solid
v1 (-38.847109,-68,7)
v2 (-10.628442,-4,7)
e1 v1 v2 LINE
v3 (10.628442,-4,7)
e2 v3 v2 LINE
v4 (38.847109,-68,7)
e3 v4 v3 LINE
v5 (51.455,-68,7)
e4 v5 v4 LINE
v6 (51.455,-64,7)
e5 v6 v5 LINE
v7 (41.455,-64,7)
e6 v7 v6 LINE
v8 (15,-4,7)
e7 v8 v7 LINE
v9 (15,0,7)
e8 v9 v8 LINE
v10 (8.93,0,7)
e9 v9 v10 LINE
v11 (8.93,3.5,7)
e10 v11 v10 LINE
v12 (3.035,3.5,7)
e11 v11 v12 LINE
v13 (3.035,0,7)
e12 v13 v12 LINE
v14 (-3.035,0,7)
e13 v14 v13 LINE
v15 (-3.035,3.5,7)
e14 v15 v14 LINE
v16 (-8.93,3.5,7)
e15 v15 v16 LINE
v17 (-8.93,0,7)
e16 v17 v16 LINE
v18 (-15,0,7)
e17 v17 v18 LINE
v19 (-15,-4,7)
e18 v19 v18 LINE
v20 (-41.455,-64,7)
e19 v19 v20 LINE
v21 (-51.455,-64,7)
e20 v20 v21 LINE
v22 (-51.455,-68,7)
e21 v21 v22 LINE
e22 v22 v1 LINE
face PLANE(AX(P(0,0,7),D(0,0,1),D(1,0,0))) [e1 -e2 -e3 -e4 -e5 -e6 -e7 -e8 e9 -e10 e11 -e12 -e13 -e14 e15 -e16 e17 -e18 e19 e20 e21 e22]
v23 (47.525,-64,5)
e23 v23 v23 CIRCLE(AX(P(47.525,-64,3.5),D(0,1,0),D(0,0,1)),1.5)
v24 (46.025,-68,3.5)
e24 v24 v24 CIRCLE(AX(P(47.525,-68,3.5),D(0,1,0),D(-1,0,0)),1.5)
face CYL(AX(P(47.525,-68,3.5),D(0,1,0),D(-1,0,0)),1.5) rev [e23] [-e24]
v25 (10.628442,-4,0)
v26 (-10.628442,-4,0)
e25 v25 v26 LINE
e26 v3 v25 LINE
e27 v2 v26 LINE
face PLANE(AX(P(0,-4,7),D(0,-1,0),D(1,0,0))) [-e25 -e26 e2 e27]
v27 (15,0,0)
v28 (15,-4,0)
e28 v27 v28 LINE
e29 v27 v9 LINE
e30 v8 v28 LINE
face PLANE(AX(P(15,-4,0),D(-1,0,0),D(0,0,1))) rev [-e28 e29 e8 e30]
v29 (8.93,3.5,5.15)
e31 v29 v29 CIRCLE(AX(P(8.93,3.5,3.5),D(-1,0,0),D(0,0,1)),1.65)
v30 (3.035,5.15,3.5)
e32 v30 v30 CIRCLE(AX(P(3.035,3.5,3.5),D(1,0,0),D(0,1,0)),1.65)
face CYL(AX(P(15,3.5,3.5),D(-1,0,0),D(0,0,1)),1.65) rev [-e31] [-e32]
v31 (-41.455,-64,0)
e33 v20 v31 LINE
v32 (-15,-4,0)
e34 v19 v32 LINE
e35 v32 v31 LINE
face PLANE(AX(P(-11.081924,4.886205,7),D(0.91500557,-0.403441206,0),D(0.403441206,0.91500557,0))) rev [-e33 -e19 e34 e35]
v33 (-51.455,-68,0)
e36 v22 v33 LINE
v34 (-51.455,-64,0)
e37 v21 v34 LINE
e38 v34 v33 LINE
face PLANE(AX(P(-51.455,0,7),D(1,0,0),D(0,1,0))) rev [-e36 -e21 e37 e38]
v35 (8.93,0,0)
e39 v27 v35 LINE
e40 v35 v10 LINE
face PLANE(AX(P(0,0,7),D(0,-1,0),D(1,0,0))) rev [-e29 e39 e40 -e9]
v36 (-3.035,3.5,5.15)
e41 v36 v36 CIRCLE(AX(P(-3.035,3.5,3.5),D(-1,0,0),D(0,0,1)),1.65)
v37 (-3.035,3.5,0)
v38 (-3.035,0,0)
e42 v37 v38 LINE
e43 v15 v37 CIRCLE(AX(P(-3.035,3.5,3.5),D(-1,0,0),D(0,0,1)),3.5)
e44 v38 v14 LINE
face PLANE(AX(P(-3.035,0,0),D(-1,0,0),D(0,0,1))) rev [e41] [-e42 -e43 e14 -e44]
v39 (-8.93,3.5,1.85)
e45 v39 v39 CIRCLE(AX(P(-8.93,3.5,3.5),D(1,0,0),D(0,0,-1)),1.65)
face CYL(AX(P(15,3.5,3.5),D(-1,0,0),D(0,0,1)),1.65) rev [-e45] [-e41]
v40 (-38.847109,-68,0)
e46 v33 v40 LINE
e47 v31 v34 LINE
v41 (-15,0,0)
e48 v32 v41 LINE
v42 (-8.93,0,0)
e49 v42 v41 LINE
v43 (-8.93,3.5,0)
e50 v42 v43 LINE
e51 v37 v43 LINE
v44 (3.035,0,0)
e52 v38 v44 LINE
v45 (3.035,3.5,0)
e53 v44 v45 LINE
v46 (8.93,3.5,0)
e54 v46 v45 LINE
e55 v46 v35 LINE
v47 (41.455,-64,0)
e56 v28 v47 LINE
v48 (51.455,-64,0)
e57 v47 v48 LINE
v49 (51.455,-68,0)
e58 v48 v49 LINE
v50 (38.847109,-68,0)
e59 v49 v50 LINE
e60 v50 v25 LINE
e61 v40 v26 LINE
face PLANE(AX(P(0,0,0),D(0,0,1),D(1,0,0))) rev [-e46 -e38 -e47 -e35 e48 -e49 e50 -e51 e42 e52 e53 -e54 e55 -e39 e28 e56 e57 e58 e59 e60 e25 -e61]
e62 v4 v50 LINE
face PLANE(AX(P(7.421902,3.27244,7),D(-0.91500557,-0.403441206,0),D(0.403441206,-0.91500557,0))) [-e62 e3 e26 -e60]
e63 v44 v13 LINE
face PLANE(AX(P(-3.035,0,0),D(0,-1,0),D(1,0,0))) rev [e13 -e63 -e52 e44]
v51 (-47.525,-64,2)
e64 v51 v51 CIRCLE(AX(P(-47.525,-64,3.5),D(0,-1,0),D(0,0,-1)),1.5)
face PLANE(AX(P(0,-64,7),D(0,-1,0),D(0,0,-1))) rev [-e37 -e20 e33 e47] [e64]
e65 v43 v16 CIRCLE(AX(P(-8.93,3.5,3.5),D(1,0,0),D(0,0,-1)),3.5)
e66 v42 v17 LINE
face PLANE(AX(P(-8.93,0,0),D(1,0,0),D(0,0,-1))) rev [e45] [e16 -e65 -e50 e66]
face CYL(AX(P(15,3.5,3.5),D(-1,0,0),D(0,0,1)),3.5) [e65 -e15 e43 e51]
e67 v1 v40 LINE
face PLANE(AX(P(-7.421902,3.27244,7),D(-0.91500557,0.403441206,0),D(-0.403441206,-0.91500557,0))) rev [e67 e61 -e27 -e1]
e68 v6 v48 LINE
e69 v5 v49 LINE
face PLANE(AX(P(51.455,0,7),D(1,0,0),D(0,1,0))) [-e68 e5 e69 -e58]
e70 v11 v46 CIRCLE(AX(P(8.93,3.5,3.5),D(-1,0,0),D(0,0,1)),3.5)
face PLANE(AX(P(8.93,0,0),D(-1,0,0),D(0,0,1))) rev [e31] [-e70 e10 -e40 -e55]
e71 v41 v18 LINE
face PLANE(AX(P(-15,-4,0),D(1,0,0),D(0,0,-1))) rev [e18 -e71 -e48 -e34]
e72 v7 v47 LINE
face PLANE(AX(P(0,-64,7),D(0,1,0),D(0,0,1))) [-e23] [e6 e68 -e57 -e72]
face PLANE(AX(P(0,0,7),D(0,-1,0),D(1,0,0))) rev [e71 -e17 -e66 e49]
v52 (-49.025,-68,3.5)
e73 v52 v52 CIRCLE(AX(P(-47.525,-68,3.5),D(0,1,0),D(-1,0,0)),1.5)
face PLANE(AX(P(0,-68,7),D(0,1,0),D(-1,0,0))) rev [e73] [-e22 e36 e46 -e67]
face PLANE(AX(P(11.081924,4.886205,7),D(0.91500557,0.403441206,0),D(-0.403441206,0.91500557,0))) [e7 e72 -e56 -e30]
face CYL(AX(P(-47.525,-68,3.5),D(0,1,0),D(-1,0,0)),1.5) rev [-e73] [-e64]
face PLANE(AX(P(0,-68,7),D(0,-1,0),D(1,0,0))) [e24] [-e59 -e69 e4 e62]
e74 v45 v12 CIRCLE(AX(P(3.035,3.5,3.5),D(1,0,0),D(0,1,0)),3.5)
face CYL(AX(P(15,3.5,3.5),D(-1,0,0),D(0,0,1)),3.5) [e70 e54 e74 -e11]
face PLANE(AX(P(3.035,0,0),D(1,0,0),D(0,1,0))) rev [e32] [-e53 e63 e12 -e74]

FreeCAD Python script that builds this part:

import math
import FreeCAD as App
import Part
import Sketcher
from FreeCAD import Vector
Q = App.Units.Quantity


def add_polygon(sketch, points):
    """Adds a closed chain of lines whose ends are joined by coincident constraints."""
    first, n = sketch.GeometryCount, len(points)
    for a, b in zip(points, points[1:] + points[:1]):
        sketch.addGeometry(Part.LineSegment(App.Vector(*a, 0), App.Vector(*b, 0)), False)
    for i in range(n):
        sketch.addConstraint(Sketcher.Constraint("Coincident", first + i, 2, first + (i + 1) % n, 1))

doc = App.newDocument("Part")
body = doc.addObject("PartDesign::Body", "Body")

sketch1 = doc.addObject("Sketcher::SketchObject", "Sketch")
body.addObject(sketch1)
sketch1.AttachmentSupport = (doc.XY_Plane, [""])
sketch1.MapMode = "FlatFace"
add_polygon(sketch1, [(-38.847109, -68), (-10.628442, -4), (10.628442, -4), (38.847109, -68), (51.455, -68), (51.455, -64), (41.455, -64), (15, -4), (51.455, -4), (51.455, 0), (-51.455, 0), (-51.455, -4), (-15, -4), (-41.455, -64), (-51.455, -64), (-51.455, -68)])
sketch1.addConstraint([
    Sketcher.Constraint("Horizontal", 1),
    Sketcher.Constraint("Horizontal", 3),
    Sketcher.Constraint("Vertical", 4),
    Sketcher.Constraint("Horizontal", 5),
    Sketcher.Constraint("Horizontal", 7),
    Sketcher.Constraint("Vertical", 8),
    Sketcher.Constraint("Horizontal", 9),
    Sketcher.Constraint("Vertical", 10),
    Sketcher.Constraint("Horizontal", 11),
    Sketcher.Constraint("Horizontal", 13),
    Sketcher.Constraint("Vertical", 14),
    Sketcher.Constraint("Horizontal", 15),
    Sketcher.Constraint("Symmetric", 8, 2, 9, 2, -1, 1),
    Sketcher.Constraint("Symmetric", 6, 2, 11, 2, -2),
    Sketcher.Constraint("Symmetric", 5, 2, 12, 2, -2),
    Sketcher.Constraint("Symmetric", 3, 2, 14, 2, -2),
    Sketcher.Constraint("Parallel", 2, 6),
    Sketcher.Constraint("Parallel", 0, 12),
    Sketcher.Constraint("Horizontal", 1, 2, 6, 2),
    Sketcher.Constraint("Vertical", 4, 2, 7, 2),
    Sketcher.Constraint("Equal", 3, 15),
    Sketcher.Constraint("Equal", 4, 8),
    Sketcher.Constraint("DistanceX", 5, 2, 5, 1, Q("10 mm")),
    Sketcher.Constraint("DistanceY", 4, 1, 4, 2, Q("4 mm")),
    Sketcher.Constraint("DistanceY", 2, 2, -1, 1, Q("68 mm")),
    Sketcher.Constraint("DistanceX", -1, 1, 6, 2, Q("15 mm")),
    Sketcher.Constraint("DistanceX", 9, 2, 9, 1, Q("102.91 mm")),
    Sketcher.Constraint("DistanceX", 3, 1, 3, 2, Q("12.607891 mm")),
])
pad1 = doc.addObject("PartDesign::Pad", "Pad")
body.addObject(pad1)
pad1.Profile = sketch1
pad1.Length = 7

sketch2 = doc.addObject("Sketcher::SketchObject", "Sketch001")
body.addObject(sketch2)
sketch2.AttachmentSupport = (doc.XZ_Plane, [""])
sketch2.MapMode = "FlatFace"
sketch2.addGeometry([
    Part.Circle(Vector(-47.525, 3.5, 0), Vector(0, 0, 1), 1.5),
    Part.Circle(Vector(47.525, 3.5, 0), Vector(0, 0, 1), 1.5),
], False)
sketch2.addConstraint([
    Sketcher.Constraint("Equal", 0, 1),
    Sketcher.Constraint("Symmetric", 0, 3, 1, 3, -2),
    Sketcher.Constraint("Diameter", 0, Q("3 mm")),
    Sketcher.Constraint("DistanceY", -1, 1, 0, 3, Q("3.5 mm")),
    Sketcher.Constraint("DistanceX", 0, 3, 1, 3, Q("95.05 mm")),
])
pocket1 = doc.addObject("PartDesign::Pocket", "Pocket")
body.addObject(pocket1)
pocket1.Profile = sketch2
pocket1.Type = "ThroughAll"
pocket1.Midplane = True

sketch3 = doc.addObject("Sketcher::SketchObject", "Sketch002")
body.addObject(sketch3)
sketch3.AttachmentSupport = (doc.YZ_Plane, [""])
sketch3.MapMode = "FlatFace"
sketch3.addGeometry([
    Part.LineSegment(Vector(0, 7, 0), Vector(0, 0, 0)),
    Part.LineSegment(Vector(0, 0, 0), Vector(3.5, 0, 0)),
    Part.ArcOfCircle(Part.Circle(Vector(3.5, 3.5, 0), Vector(0, 0, 1), 3.5), math.radians(-90), math.radians(90)),
    Part.LineSegment(Vector(3.5, 7, 0), Vector(0, 7, 0)),
    Part.Circle(Vector(3.5, 3.5, 0), Vector(0, 0, 1), 1.65),
], False)
sketch3.addConstraint([
    Sketcher.Constraint("Coincident", 0, 2, 1, 1),
    Sketcher.Constraint("Tangent", 1, 2, 2, 1),
    Sketcher.Constraint("Tangent", 2, 2, 3, 1),
    Sketcher.Constraint("Coincident", 3, 2, 0, 1),
    Sketcher.Constraint("Vertical", 0),
    Sketcher.Constraint("Horizontal", 1),
    Sketcher.Constraint("Horizontal", 3),
    Sketcher.Constraint("Coincident", 0, 2, -1, 1),
    Sketcher.Constraint("Coincident", 4, 3, 2, 3),
    Sketcher.Constraint("Diameter", 4, Q("3.3 mm")),
    Sketcher.Constraint("Radius", 2, Q("3.5 mm")),
    Sketcher.Constraint("DistanceX", 1, 1, 1, 2, Q("3.5 mm")),
])
pad2 = doc.addObject("PartDesign::Pad", "Pad001")
body.addObject(pad2)
pad2.Profile = sketch3
pad2.Length = 30
pad2.Midplane = True

sketch4 = doc.addObject("Sketcher::SketchObject", "Sketch003")
body.addObject(sketch4)
sketch4.AttachmentSupport = (doc.XY_Plane, [""])
sketch4.MapMode = "FlatFace"
sketch4.AttachmentOffset = App.Placement(Vector(0, 0, 7), App.Rotation())
add_polygon(sketch4, [(-15, 7), (-15, 0), (-8.93, 0), (-8.93, 7)])
add_polygon(sketch4, [(8.93, 7), (8.93, 0), (15, 0), (15, 7)])
add_polygon(sketch4, [(-3.035, 7), (-3.035, 0), (3.035, 0), (3.035, 7)])
sketch4.addConstraint([
    Sketcher.Constraint("Vertical", 0),
    Sketcher.Constraint("Horizontal", 1),
    Sketcher.Constraint("Vertical", 2),
    Sketcher.Constraint("Horizontal", 3),
    Sketcher.Constraint("Vertical", 4),
    Sketcher.Constraint("Horizontal", 5),
    Sketcher.Constraint("Vertical", 6),
    Sketcher.Constraint("Horizontal", 7),
    Sketcher.Constraint("Vertical", 8),
    Sketcher.Constraint("Horizontal", 9),
    Sketcher.Constraint("Vertical", 10),
    Sketcher.Constraint("Horizontal", 11),
    Sketcher.Constraint("Symmetric", 1, 2, 4, 2, -1, 1),
    Sketcher.Constraint("Symmetric", 8, 2, 9, 2, -1, 1),
    Sketcher.Constraint("Symmetric", 0, 2, 5, 2, -2),
    Sketcher.Constraint("Horizontal", 3, 2, 6, 2),
    Sketcher.Constraint("Horizontal", 7, 2, 10, 2),
    Sketcher.Constraint("Equal", 7, 9),
    Sketcher.Constraint("DistanceY", 0, 2, 0, 1, Q("7 mm")),
    Sketcher.Constraint("DistanceX", 0, 2, -1, 1, Q("15 mm")),
    Sketcher.Constraint("DistanceX", 1, 1, 1, 2, Q("6.07 mm")),
])
pocket2 = doc.addObject("PartDesign::Pocket", "Pocket001")
body.addObject(pocket2)
pocket2.Profile = sketch4
pocket2.Type = "ThroughAll"

sketch5 = doc.addObject("Sketcher::SketchObject", "Sketch004")
body.addObject(sketch5)
sketch5.AttachmentSupport = (doc.XY_Plane, [""])
sketch5.MapMode = "FlatFace"
sketch5.AttachmentOffset = App.Placement(Vector(0, 0, 7), App.Rotation())
add_polygon(sketch5, [(-51.455, 0), (-51.455, -4), (-15, -4), (-15, 0)])
add_polygon(sketch5, [(15, 0), (15, -4), (51.455, -4), (51.455, 0)])
sketch5.addConstraint([
    Sketcher.Constraint("Vertical", 0),
    Sketcher.Constraint("Horizontal", 1),
    Sketcher.Constraint("Vertical", 2),
    Sketcher.Constraint("Horizontal", 3),
    Sketcher.Constraint("Vertical", 4),
    Sketcher.Constraint("Horizontal", 5),
    Sketcher.Constraint("Vertical", 6),
    Sketcher.Constraint("Horizontal", 7),
    Sketcher.Constraint("Symmetric", 3, 2, 6, 2, -1, 1),
    Sketcher.Constraint("Symmetric", 1, 2, 4, 2, -2),
    Sketcher.Constraint("PointOnObject", 2, 2, -1),
    Sketcher.Constraint("DistanceY", 0, 2, 0, 1, Q("4 mm")),
    Sketcher.Constraint("DistanceX", 1, 2, -1, 1, Q("15 mm")),
    Sketcher.Constraint("DistanceX", 1, 1, 1, 2, Q("36.455 mm")),
])
pocket3 = doc.addObject("PartDesign::Pocket", "Pocket002")
body.addObject(pocket3)
pocket3.Profile = sketch5
pocket3.Type = "ThroughAll"

doc.recompute()
